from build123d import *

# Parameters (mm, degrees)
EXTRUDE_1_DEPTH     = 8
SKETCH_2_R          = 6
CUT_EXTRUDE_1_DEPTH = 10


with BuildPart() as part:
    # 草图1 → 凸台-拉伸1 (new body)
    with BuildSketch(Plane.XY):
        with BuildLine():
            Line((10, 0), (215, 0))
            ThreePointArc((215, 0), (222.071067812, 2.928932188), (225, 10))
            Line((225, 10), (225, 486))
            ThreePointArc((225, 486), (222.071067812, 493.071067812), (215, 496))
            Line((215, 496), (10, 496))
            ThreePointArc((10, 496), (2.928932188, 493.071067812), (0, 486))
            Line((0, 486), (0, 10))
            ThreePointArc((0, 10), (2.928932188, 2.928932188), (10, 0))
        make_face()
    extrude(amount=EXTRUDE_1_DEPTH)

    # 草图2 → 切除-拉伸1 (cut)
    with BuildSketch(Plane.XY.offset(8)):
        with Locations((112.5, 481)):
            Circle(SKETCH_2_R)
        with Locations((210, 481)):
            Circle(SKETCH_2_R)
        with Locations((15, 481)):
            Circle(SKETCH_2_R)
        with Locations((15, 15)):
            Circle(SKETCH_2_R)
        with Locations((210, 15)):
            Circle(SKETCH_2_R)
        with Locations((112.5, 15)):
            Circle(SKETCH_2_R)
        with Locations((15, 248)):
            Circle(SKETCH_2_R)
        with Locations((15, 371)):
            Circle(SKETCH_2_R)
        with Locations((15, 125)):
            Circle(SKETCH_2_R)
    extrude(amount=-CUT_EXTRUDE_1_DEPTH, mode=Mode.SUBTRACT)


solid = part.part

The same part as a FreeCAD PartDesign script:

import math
import FreeCAD as App
import Part
import Sketcher

V = App.Vector
Q = App.Units.Quantity

doc = App.newDocument("Part")
body = doc.addObject("PartDesign::Body", "Body")

sketch1 = body.newObject("Sketcher::SketchObject", "Sketch")
sketch1.AttachmentSupport = (doc.getObject("XY_Plane"), [""])
sketch1.MapMode = "FlatFace"
sketch1.addGeometry([
    Part.LineSegment(V(10, 0, 0), V(215, 0, 0)),
    Part.ArcOfCircle(Part.Circle(V(215, 10, 0), V(0, 0, 1), 10), math.radians(-90), math.radians(0)),
    Part.LineSegment(V(225, 10, 0), V(225, 486, 0)),
    Part.ArcOfCircle(Part.Circle(V(215, 486, 0), V(0, 0, 1), 10), math.radians(0), math.radians(90)),
    Part.LineSegment(V(215, 496, 0), V(10, 496, 0)),
    Part.ArcOfCircle(Part.Circle(V(10, 486, 0), V(0, 0, 1), 10), math.radians(90), math.radians(180)),
    Part.LineSegment(V(0, 486, 0), V(0, 10, 0)),
    Part.ArcOfCircle(Part.Circle(V(10, 10, 0), V(0, 0, 1), 10), math.radians(180), math.radians(270)),
], False)
sketch1.addConstraint([
    Sketcher.Constraint("Tangent", 0, 2, 1, 1),
    Sketcher.Constraint("Tangent", 1, 2, 2, 1),
    Sketcher.Constraint("Tangent", 2, 2, 3, 1),
    Sketcher.Constraint("Tangent", 3, 2, 4, 1),
    Sketcher.Constraint("Tangent", 4, 2, 5, 1),
    Sketcher.Constraint("Tangent", 5, 2, 6, 1),
    Sketcher.Constraint("Tangent", 6, 2, 7, 1),
    Sketcher.Constraint("Tangent", 7, 2, 0, 1),
    Sketcher.Constraint("Horizontal", 0),
    Sketcher.Constraint("Vertical", 2),
    Sketcher.Constraint("Horizontal", 4),
    Sketcher.Constraint("Vertical", 6),
    Sketcher.Constraint("Equal", 1, 3),
    Sketcher.Constraint("Equal", 3, 5),
    Sketcher.Constraint("Equal", 5, 7),
    Sketcher.Constraint("PointOnObject", 0, 2, -1),
    Sketcher.Constraint("PointOnObject", 5, 2, -2),
    Sketcher.Constraint("Radius", 1, Q("10 mm")),
    Sketcher.Constraint("DistanceX", 0, 1, 0, 2, Q("205 mm")),
    Sketcher.Constraint("DistanceY", 2, 1, 2, 2, Q("476 mm")),
])
pad1 = body.newObject("PartDesign::Pad", "Pad")
pad1.Profile = sketch1
pad1.Length = 8

sketch2 = body.newObject("Sketcher::SketchObject", "Sketch001")
sketch2.AttachmentSupport = (doc.getObject("XY_Plane"), [""])
sketch2.MapMode = "FlatFace"
sketch2.AttachmentOffset = App.Placement(V(0, 0, 8), App.Rotation())
sketch2.addGeometry([
    Part.Circle(V(112, 481, 0), V(0, 0, 1), 6),
    Part.Circle(V(210, 481, 0), V(0, 0, 1), 6),
    Part.Circle(V(15, 481, 0), V(0, 0, 1), 6),
    Part.Circle(V(15, 15, 0), V(0, 0, 1), 6),
    Part.Circle(V(210, 15, 0), V(0, 0, 1), 6),
    Part.Circle(V(112, 15, 0), V(0, 0, 1), 6),
    Part.Circle(V(15, 248, 0), V(0, 0, 1), 6),
    Part.Circle(V(15, 371, 0), V(0, 0, 1), 6),
    Part.Circle(V(15, 125, 0), V(0, 0, 1), 6),
], False)
sketch2.addConstraint([
    Sketcher.Constraint("Equal", 0, 1),
    Sketcher.Constraint("Equal", 1, 2),
    Sketcher.Constraint("Equal", 2, 3),
    Sketcher.Constraint("Equal", 3, 4),
    Sketcher.Constraint("Equal", 4, 5),
    Sketcher.Constraint("Equal", 5, 6),
    Sketcher.Constraint("Equal", 6, 7),
    Sketcher.Constraint("Equal", 7, 8),
    Sketcher.Constraint("Horizontal", 0, 3, 1, 3),
    Sketcher.Constraint("Horizontal", 1, 3, 2, 3),
    Sketcher.Constraint("Horizontal", 3, 3, 4, 3),
    Sketcher.Constraint("Horizontal", 4, 3, 5, 3),
    Sketcher.Constraint("Vertical", 2, 3, 3, 3),
    Sketcher.Constraint("Vertical", 1, 3, 4, 3),
    Sketcher.Constraint("Vertical", 0, 3, 5, 3),
    Sketcher.Constraint("Vertical", 3, 3, 6, 3),
    Sketcher.Constraint("Vertical", 6, 3, 7, 3),
    Sketcher.Constraint("Vertical", 7, 3, 8, 3),
    Sketcher.Constraint("Diameter", 0, Q("12 mm")),
    Sketcher.Constraint("DistanceY", -1, 1, 0, 3, Q("481 mm")),
    Sketcher.Constraint("DistanceX", -1, 1, 1, 3, Q("210 mm")),
    Sketcher.Constraint("DistanceX", -1, 1, 2, 3, Q("15 mm")),
    Sketcher.Constraint("DistanceY", -1, 1, 3, 3, Q("15 mm")),
    Sketcher.Constraint("DistanceY", -1, 1, 6, 3, Q("248 mm")),
    Sketcher.Constraint("DistanceY", -1, 1, 7, 3, Q("371 mm")),
    Sketcher.Constraint("DistanceY", -1, 1, 8, 3, Q("125 mm")),
    Sketcher.Constraint("DistanceX", -1, 1, 0, 3, Q("112.5 mm")),
])
pocket1 = body.newObject("PartDesign::Pocket", "Pocket")
pocket1.Profile = sketch2
pocket1.Length = 10

doc.recompute()
